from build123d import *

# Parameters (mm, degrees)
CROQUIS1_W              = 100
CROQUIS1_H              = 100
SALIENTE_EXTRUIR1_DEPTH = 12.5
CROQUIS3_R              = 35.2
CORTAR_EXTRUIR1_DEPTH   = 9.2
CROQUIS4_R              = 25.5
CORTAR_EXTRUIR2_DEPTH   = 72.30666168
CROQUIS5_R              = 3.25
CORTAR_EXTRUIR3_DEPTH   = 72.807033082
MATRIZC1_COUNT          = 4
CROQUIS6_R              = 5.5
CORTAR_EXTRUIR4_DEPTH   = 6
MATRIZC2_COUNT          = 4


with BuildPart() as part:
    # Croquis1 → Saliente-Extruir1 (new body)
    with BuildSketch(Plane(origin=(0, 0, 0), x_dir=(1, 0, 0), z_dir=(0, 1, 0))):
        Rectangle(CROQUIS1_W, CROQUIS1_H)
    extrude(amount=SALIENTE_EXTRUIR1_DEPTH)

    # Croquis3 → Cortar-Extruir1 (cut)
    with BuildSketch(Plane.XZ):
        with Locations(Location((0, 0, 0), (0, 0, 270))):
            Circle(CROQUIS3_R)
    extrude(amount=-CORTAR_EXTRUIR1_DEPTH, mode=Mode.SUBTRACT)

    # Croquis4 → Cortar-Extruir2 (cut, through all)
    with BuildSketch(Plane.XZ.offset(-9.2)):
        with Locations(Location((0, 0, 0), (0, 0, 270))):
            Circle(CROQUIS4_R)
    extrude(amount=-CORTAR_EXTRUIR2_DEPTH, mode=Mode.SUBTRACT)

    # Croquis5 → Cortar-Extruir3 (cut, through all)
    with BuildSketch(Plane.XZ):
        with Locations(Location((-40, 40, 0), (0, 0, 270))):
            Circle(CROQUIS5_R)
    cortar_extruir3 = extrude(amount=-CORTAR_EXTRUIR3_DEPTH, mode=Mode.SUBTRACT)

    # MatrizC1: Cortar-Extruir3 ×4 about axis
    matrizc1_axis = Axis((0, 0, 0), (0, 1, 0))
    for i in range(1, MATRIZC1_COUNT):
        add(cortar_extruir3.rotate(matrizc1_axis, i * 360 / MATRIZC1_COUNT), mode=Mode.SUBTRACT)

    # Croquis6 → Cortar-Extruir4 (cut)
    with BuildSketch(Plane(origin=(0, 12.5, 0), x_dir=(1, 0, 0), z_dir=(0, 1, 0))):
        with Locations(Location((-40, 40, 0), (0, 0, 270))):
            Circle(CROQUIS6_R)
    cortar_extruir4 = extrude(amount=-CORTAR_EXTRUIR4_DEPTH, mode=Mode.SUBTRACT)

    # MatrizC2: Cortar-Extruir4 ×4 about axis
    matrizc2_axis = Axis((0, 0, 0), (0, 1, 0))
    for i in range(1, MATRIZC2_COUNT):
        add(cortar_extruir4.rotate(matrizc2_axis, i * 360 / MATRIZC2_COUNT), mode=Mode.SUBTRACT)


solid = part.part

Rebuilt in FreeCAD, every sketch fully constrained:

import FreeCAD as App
import Part
import Sketcher
from FreeCAD import Vector

doc = App.newDocument("Part")
params = doc.addObject("Spreadsheet::Sheet", "Params")
for row, (alias, value) in enumerate([
    ("sketch1_width", "100 mm"),
    ("pad1_length", "12.5 mm"),
    ("sketch2_diameter", "70.4 mm"),
    ("pocket1_length", "9.2 mm"),
    ("sketch3_diameter", "51 mm"),
    ("sketch4_diameter", "6.5 mm"),
    ("sketch5_diameter", "11 mm"),
    ("pocket4_length", "6 mm"),
], start=1):
    params.set(f"A{row}", alias)
    params.set(f"B{row}", "=" + value)
    params.setAlias(f"B{row}", alias)

body = doc.addObject("PartDesign::Body", "Body")

# Sketch on XZ plane
sketch1 = body.newObject("Sketcher::SketchObject", "Sketch")
sketch1.AttachmentSupport = (doc.getObject("XZ_Plane"), [""])
sketch1.MapMode = "FlatFace"
sketch1.addGeometry([
    Part.LineSegment(Vector(-50, -50, 0), Vector(-50, 50, 0)),
    Part.LineSegment(Vector(-50, 50, 0), Vector(50, 50, 0)),
    Part.LineSegment(Vector(50, 50, 0), Vector(50, -50, 0)),
    Part.LineSegment(Vector(50, -50, 0), Vector(-50, -50, 0)),
], False)
sketch1.addConstraint([
    Sketcher.Constraint("Coincident", 0, 2, 1, 1),
    Sketcher.Constraint("Coincident", 1, 2, 2, 1),
    Sketcher.Constraint("Coincident", 2, 2, 3, 1),
    Sketcher.Constraint("Coincident", 3, 2, 0, 1),
    Sketcher.Constraint("Vertical", 0),
    Sketcher.Constraint("Horizontal", 1),
    Sketcher.Constraint("Vertical", 2),
    Sketcher.Constraint("Horizontal", 3),
    Sketcher.Constraint("Symmetric", 0, 2, 2, 2, -1, 1),
    Sketcher.Constraint("Equal", 3, 0),
    Sketcher.Constraint("DistanceX", 1, 1, 1, 2, 100.0),
])
sketch1.setExpression("Constraints[10]", "Params.sketch1_width")
pad1 = body.newObject("PartDesign::Pad", "Pad")
pad1.Profile = sketch1
pad1.setExpression("Length", "Params.pad1_length")
pad1.Reversed = True

# Sketch on XZ plane
sketch2 = body.newObject("Sketcher::SketchObject", "Sketch001")
sketch2.AttachmentSupport = (doc.getObject("XZ_Plane"), [""])
sketch2.MapMode = "FlatFace"
sketch2.addGeometry(Part.Circle(Vector(0, 0, 0), Vector(0, 0, 1), 35), False)
sketch2.addConstraint([
    Sketcher.Constraint("Coincident", 0, 3, -1, 1),
    Sketcher.Constraint("Diameter", 0, 70.4),
])
sketch2.setExpression("Constraints[1]", "Params.sketch2_diameter")
pocket1 = body.newObject("PartDesign::Pocket", "Pocket")
pocket1.Profile = sketch2
pocket1.setExpression("Length", "Params.pocket1_length")

# Sketch on XZ plane
sketch3 = body.newObject("Sketcher::SketchObject", "Sketch002")
sketch3.AttachmentSupport = (doc.getObject("XZ_Plane"), [""])
sketch3.MapMode = "FlatFace"
sketch3.AttachmentOffset = App.Placement(Vector(0, 0, -9.2), App.Rotation())
sketch3.addGeometry(Part.Circle(Vector(0, 0, 0), Vector(0, 0, 1), 26), False)
sketch3.addConstraint([
    Sketcher.Constraint("Coincident", 0, 3, -1, 1),
    Sketcher.Constraint("Diameter", 0, 51.0),
])
sketch3.setExpression("Constraints[1]", "Params.sketch3_diameter")
pocket2 = body.newObject("PartDesign::Pocket", "Pocket001")
pocket2.Profile = sketch3
pocket2.Type = "ThroughAll"

# Sketch on XZ plane
sketch4 = body.newObject("Sketcher::SketchObject", "Sketch003")
sketch4.AttachmentSupport = (doc.getObject("XZ_Plane"), [""])
sketch4.MapMode = "FlatFace"
sketch4.addGeometry(Part.Circle(Vector(-40, 40, 0), Vector(0, 0, 1), 3.2), False)
sketch4.addConstraint([
    Sketcher.Constraint("Diameter", 0, 6.5),
    Sketcher.Constraint("DistanceX", 0, 3, -1, 1, 40.0),
    Sketcher.Constraint("DistanceY", -1, 1, 0, 3, 40.0),
])
sketch4.setExpression("Constraints[0]", "Params.sketch4_diameter")
pocket3 = body.newObject("PartDesign::Pocket", "Pocket002")
pocket3.Profile = sketch4
pocket3.Type = "ThroughAll"
doc.recompute()

polarpattern = body.newObject("PartDesign::PolarPattern", "PolarPattern")
polarpattern.Originals = [pocket3]
polarpattern.Axis = (doc.getObject("Y_Axis"), [""])
polarpattern.Angle = 360
polarpattern.Occurrences = 4
body.Tip = polarpattern

# Sketch on XZ plane
sketch5 = body.newObject("Sketcher::SketchObject", "Sketch004")
sketch5.AttachmentSupport = (doc.getObject("XZ_Plane"), [""])
sketch5.MapMode = "FlatFace"
sketch5.AttachmentOffset = App.Placement(Vector(0, 0, -12.5), App.Rotation())
sketch5.addGeometry(Part.Circle(Vector(-40, -40, 0), Vector(0, 0, 1), 6), False)
sketch5.addConstraint([
    Sketcher.Constraint("Diameter", 0, 11.0),
    Sketcher.Constraint("DistanceX", 0, 3, -1, 1, 40.0),
    Sketcher.Constraint("DistanceY", 0, 3, -1, 1, 40.0),
])
sketch5.setExpression("Constraints[0]", "Params.sketch5_diameter")
pocket4 = body.newObject("PartDesign::Pocket", "Pocket003")
pocket4.Profile = sketch5
pocket4.setExpression("Length", "Params.pocket4_length")
pocket4.Reversed = True
doc.recompute()

polarpattern2 = body.newObject("PartDesign::PolarPattern", "PolarPattern001")
polarpattern2.Originals = [pocket4]
polarpattern2.Axis = (doc.getObject("Y_Axis"), [""])
polarpattern2.Angle = 360
polarpattern2.Occurrences = 4
body.Tip = polarpattern2

doc.recompute()
